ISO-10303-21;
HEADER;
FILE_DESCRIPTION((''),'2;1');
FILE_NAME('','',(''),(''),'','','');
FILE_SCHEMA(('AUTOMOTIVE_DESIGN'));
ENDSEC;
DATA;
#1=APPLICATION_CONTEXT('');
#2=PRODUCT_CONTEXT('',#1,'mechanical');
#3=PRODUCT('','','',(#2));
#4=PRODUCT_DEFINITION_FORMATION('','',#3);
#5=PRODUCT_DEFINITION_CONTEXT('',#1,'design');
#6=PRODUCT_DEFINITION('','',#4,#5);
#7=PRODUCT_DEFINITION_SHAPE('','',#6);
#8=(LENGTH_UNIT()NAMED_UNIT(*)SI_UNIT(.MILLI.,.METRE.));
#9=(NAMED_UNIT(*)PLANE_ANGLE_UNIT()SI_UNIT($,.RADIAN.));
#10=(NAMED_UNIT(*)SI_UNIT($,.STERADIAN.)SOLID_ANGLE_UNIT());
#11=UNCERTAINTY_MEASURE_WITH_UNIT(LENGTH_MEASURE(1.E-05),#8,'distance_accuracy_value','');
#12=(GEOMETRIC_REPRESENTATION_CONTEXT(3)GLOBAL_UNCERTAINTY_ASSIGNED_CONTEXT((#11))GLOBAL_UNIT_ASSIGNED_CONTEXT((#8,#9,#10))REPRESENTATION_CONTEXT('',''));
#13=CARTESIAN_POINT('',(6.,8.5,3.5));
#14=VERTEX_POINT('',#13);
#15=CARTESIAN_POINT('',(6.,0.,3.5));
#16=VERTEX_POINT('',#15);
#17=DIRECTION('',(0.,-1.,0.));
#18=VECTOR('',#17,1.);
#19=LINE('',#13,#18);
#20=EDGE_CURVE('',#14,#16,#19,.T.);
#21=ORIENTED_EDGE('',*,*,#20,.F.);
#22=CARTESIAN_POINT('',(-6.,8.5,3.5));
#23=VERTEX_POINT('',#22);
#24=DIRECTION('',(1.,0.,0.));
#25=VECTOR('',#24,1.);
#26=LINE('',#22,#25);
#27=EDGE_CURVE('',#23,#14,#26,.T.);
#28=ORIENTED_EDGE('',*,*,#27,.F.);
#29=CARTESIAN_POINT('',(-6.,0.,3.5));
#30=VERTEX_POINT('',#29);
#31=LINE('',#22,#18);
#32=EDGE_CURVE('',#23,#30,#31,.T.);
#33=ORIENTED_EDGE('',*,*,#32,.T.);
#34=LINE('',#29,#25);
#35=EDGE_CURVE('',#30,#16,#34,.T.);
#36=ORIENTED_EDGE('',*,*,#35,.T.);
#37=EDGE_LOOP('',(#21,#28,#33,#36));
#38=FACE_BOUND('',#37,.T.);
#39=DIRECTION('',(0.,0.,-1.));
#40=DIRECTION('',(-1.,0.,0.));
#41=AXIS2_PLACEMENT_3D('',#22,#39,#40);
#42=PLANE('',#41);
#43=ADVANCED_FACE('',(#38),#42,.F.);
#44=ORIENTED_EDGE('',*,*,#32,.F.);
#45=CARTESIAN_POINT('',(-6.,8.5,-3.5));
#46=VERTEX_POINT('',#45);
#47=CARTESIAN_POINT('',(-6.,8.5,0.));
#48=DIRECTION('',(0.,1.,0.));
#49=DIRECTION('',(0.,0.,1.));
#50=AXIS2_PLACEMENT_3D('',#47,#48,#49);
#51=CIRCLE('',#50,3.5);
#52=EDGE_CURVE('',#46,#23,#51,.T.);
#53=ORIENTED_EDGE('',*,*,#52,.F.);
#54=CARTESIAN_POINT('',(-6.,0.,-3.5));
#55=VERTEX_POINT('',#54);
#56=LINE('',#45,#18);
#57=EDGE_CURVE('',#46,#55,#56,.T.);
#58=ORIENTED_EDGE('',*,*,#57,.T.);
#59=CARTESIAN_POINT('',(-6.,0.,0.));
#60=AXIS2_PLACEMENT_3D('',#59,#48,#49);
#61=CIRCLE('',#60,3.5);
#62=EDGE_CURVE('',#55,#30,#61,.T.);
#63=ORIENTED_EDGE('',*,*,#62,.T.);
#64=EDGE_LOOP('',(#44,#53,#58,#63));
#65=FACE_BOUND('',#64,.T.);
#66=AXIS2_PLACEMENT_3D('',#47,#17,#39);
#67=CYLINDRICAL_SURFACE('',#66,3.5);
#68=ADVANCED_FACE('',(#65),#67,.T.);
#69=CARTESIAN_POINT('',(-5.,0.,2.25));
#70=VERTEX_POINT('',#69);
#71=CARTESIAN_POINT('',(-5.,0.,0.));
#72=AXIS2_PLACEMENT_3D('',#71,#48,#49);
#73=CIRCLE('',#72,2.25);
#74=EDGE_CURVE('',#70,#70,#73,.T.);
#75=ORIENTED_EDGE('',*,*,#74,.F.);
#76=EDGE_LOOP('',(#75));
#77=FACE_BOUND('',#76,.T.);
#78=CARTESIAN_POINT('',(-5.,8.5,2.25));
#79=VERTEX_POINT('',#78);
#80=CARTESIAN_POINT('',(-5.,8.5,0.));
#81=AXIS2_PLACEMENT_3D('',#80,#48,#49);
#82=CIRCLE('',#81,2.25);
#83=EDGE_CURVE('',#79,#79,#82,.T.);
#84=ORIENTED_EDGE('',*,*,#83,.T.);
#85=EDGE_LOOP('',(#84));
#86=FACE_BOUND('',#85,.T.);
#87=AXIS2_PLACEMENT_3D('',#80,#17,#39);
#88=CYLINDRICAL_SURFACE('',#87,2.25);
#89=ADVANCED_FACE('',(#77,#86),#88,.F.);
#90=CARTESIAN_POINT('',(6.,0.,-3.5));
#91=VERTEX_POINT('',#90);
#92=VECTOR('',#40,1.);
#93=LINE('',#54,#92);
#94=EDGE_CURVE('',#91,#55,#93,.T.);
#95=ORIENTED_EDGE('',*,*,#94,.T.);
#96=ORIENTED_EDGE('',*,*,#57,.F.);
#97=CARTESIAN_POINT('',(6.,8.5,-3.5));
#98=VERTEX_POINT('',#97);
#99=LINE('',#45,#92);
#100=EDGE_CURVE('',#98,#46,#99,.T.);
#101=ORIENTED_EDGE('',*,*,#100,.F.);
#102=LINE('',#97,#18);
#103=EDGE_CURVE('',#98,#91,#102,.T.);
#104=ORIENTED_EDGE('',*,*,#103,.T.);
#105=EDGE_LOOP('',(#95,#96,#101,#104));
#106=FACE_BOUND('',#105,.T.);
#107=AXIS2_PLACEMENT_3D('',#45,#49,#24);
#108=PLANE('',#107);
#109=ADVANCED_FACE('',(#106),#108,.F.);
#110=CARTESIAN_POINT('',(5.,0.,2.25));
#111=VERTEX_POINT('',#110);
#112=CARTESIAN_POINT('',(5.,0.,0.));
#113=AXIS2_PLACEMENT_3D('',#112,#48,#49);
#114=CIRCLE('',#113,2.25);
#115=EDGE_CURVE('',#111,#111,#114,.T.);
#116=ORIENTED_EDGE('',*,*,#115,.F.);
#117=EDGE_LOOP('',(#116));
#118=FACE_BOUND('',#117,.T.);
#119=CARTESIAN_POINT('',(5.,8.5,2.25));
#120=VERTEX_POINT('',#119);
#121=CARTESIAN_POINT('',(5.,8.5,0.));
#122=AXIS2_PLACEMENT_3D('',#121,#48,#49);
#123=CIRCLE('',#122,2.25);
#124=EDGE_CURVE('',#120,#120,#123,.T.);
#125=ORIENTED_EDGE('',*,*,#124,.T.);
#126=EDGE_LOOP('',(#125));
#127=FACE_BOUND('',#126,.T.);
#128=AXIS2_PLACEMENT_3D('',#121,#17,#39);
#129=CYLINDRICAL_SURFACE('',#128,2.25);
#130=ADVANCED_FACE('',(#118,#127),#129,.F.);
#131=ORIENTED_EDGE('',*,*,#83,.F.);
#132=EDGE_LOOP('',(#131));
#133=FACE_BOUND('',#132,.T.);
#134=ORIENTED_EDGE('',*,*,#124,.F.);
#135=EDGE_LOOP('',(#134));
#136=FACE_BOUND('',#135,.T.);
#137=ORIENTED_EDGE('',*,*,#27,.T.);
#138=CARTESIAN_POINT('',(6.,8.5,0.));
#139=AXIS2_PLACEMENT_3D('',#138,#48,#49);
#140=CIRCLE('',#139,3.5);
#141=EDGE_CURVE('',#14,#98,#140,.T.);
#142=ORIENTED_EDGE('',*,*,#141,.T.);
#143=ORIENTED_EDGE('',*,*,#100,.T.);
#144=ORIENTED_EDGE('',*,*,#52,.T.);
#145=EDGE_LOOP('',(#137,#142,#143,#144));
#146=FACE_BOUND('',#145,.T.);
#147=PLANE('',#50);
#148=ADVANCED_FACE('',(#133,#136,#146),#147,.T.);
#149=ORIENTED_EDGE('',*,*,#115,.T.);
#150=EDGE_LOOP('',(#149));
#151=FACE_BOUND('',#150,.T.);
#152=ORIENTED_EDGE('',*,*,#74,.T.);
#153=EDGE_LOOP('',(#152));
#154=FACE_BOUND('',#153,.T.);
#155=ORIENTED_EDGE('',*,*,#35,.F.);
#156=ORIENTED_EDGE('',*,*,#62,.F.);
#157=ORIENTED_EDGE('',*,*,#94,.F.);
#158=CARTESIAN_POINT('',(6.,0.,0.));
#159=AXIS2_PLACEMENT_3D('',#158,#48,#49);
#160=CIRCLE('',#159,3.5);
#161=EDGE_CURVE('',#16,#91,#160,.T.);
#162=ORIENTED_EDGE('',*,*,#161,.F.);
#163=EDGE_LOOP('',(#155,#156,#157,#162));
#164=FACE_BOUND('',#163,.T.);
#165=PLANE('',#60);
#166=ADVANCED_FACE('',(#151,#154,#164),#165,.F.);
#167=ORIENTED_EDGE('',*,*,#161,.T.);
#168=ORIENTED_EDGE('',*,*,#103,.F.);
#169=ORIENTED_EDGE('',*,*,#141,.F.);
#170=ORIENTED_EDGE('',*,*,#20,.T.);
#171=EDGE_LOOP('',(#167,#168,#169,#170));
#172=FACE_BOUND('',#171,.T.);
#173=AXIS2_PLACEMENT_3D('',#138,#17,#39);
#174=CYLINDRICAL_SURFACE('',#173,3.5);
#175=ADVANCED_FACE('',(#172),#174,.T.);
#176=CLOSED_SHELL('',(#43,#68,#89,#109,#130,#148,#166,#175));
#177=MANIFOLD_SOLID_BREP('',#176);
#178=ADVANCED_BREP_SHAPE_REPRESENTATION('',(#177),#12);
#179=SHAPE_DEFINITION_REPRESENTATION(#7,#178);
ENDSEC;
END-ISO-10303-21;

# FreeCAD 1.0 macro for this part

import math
import FreeCAD as App
import Part
import Sketcher
from FreeCAD import Vector

doc = App.newDocument("Part")
params = doc.addObject("Spreadsheet::Sheet", "Params")
for row, (alias, value) in enumerate([
    ("sketch1_diameter", "4.5 mm"),
    ("sketch1_radius", "3.5 mm"),
    ("sketch1_width", "12 mm"),
    ("pad1_length", "8.5 mm"),
], start=1):
    params.set(f"A{row}", alias)
    params.set(f"B{row}", "=" + value)
    params.setAlias(f"B{row}", alias)

body = doc.addObject("PartDesign::Body", "Body")

# Sketch on XZ plane
sketch1 = doc.addObject("Sketcher::SketchObject", "Sketch")
body.addObject(sketch1)
sketch1.AttachmentSupport = (doc.XZ_Plane, [""])
sketch1.MapMode = "FlatFace"
sketch1.addGeometry(Part.LineSegment(Vector(-6, 3.5, 0), Vector(6, 3.5, 0)), False)
sketch1.addGeometry(Part.ArcOfCircle(Part.Circle(Vector(6, 0, 0), Vector(0, 0, 1), 3.5), math.radians(-90), math.radians(90)), False)
sketch1.addGeometry(Part.LineSegment(Vector(6, -3.5, 0), Vector(-6, -3.5, 0)), False)
sketch1.addGeometry(Part.ArcOfCircle(Part.Circle(Vector(-6, 0, 0), Vector(0, 0, 1), 3.5), math.radians(90), math.radians(270)), False)
sketch1.addGeometry(Part.Circle(Vector(-5, 0, 0), Vector(0, 0, 1), 2.2), False)
sketch1.addGeometry(Part.Circle(Vector(5, 0, 0), Vector(0, 0, 1), 2.2), False)
sketch1.addConstraint(Sketcher.Constraint("Tangent", 0, 2, 1, 2))
sketch1.addConstraint(Sketcher.Constraint("Tangent", 1, 1, 2, 1))
sketch1.addConstraint(Sketcher.Constraint("Tangent", 2, 2, 3, 2))
sketch1.addConstraint(Sketcher.Constraint("Tangent", 3, 1, 0, 1))
sketch1.addConstraint(Sketcher.Constraint("Horizontal", 0))
sketch1.addConstraint(Sketcher.Constraint("Horizontal", 2))
sketch1.addConstraint(Sketcher.Constraint("Equal", 4, 5))
sketch1.addConstraint(Sketcher.Constraint("Symmetric", 1, 3, 3, 3, -1, 1))
sketch1.addConstraint(Sketcher.Constraint("Symmetric", 4, 3, 5, 3, -1, 1))
sketch1.addConstraint(Sketcher.Constraint("PointOnObject", 4, 3, -1))
sketch1.addConstraint(Sketcher.Constraint("Diameter", 4, 4.5))
sketch1.addConstraint(Sketcher.Constraint("Radius", 1, 3.5))
sketch1.addConstraint(Sketcher.Constraint("DistanceX", 0, 1, 0, 2, 12.0))
sketch1.addConstraint(Sketcher.Constraint("DistanceX", 4, 3, -1, 1, 5.0))
sketch1.setExpression("Constraints[10]", "Params.sketch1_diameter")
sketch1.setExpression("Constraints[11]", "Params.sketch1_radius")
sketch1.setExpression("Constraints[12]", "Params.sketch1_width")
pad1 = doc.addObject("PartDesign::Pad", "Pad")
body.addObject(pad1)
pad1.Profile = sketch1
pad1.setExpression("Length", "Params.pad1_length")
pad1.Reversed = True

doc.recompute()
